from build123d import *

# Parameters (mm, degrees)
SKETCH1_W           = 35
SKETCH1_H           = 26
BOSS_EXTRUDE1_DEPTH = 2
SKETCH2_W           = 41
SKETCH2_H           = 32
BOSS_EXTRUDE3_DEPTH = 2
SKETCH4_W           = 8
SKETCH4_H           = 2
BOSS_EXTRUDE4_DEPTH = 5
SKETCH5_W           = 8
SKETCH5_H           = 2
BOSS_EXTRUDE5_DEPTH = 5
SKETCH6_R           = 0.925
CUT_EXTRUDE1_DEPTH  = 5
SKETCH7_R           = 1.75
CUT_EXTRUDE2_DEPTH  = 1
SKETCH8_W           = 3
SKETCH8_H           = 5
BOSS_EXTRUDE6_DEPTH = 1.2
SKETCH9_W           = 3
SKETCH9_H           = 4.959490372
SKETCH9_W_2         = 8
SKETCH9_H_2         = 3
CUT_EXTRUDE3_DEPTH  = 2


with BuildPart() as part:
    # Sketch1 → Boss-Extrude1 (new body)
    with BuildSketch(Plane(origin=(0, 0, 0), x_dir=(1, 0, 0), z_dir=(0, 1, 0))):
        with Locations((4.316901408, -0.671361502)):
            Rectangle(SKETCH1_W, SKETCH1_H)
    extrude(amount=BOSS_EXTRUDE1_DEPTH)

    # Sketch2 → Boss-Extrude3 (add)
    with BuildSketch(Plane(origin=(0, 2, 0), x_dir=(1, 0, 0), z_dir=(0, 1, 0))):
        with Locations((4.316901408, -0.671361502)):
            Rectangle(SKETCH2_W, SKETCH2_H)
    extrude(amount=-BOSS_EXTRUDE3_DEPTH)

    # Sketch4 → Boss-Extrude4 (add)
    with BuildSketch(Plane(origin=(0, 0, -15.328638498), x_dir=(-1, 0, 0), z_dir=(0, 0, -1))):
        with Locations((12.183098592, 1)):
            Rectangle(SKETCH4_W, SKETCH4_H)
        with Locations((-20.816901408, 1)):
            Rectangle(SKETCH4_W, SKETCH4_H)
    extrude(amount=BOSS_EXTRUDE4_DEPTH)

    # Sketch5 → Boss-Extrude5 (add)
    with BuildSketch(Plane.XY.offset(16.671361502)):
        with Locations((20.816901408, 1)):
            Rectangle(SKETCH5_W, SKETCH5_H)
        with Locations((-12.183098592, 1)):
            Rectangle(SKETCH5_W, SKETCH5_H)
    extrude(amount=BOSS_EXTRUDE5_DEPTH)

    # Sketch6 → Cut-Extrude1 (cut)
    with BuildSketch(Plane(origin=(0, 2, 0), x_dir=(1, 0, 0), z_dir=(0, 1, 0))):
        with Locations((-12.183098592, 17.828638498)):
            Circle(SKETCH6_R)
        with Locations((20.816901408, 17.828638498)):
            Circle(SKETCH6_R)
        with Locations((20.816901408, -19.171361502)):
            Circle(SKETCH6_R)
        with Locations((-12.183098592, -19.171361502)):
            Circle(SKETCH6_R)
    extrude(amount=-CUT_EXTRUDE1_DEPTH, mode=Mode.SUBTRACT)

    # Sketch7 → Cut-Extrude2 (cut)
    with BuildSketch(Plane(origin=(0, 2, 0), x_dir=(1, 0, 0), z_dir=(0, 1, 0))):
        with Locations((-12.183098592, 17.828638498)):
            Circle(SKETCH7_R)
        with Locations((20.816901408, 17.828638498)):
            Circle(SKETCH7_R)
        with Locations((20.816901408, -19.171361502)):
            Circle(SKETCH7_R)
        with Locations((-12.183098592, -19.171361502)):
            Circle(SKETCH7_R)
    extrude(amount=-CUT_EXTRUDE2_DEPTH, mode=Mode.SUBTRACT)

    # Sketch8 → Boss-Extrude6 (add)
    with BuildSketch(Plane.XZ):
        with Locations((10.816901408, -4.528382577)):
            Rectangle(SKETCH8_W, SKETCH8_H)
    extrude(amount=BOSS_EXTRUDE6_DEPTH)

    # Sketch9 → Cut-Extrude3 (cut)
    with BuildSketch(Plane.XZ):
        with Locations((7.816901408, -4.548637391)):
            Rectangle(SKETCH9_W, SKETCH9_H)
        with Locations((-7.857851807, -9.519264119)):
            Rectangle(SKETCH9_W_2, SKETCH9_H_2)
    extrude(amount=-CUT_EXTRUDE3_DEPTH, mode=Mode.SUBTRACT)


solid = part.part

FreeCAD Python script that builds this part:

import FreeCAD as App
import Part
import Sketcher

doc = App.newDocument("Part")
params = doc.addObject("Spreadsheet::Sheet", "Params")
for row, (alias, value) in enumerate([
    ("sketch1_width", "35 mm"),
    ("sketch1_height", "26 mm"),
    ("pad1_length", "2 mm"),
    ("sketch2_width", "41 mm"),
    ("sketch2_height", "32 mm"),
    ("pad2_length", "2 mm"),
    ("sketch3_width", "8 mm"),
    ("sketch3_height", "2 mm"),
    ("pad3_length", "5 mm"),
    ("sketch4_width", "8 mm"),
    ("sketch4_height", "2 mm"),
    ("pad4_length", "5 mm"),
    ("sketch5_diameter", "1.85 mm"),
    ("pocket1_length", "5 mm"),
    ("sketch6_diameter", "3.5 mm"),
    ("pocket2_length", "1 mm"),
    ("sketch7_width", "3 mm"),
    ("sketch7_height", "5 mm"),
    ("pad5_length", "1.2 mm"),
    ("sketch8_width", "3 mm"),
    ("sketch8_width2", "8 mm"),
    ("pocket3_length", "2 mm"),
], start=1):
    params.set(f"A{row}", alias)
    params.set(f"B{row}", "=" + value)
    params.setAlias(f"B{row}", alias)

body = doc.addObject("PartDesign::Body", "Body")

# Sketch on XZ plane
sketch1 = body.newObject("Sketcher::SketchObject", "Sketch")
sketch1.AttachmentSupport = (doc.getObject("XZ_Plane"), [""])
sketch1.MapMode = "FlatFace"
sketch1.addGeometry(Part.LineSegment(App.Vector(-13, -12, 0), App.Vector(-13, 14, 0)), False)
sketch1.addGeometry(Part.LineSegment(App.Vector(-13, 14, 0), App.Vector(22, 14, 0)), False)
sketch1.addGeometry(Part.LineSegment(App.Vector(22, 14, 0), App.Vector(22, -12, 0)), False)
sketch1.addGeometry(Part.LineSegment(App.Vector(22, -12, 0), App.Vector(-13, -12, 0)), False)
sketch1.addConstraint(Sketcher.Constraint("Coincident", 0, 2, 1, 1))
sketch1.addConstraint(Sketcher.Constraint("Coincident", 1, 2, 2, 1))
sketch1.addConstraint(Sketcher.Constraint("Coincident", 2, 2, 3, 1))
sketch1.addConstraint(Sketcher.Constraint("Coincident", 3, 2, 0, 1))
sketch1.addConstraint(Sketcher.Constraint("Vertical", 0))
sketch1.addConstraint(Sketcher.Constraint("Horizontal", 1))
sketch1.addConstraint(Sketcher.Constraint("Vertical", 2))
sketch1.addConstraint(Sketcher.Constraint("Horizontal", 3))
sketch1.addConstraint(Sketcher.Constraint("DistanceX", 1, 1, 1, 2, 35.0))
sketch1.addConstraint(Sketcher.Constraint("DistanceY", 0, 1, 0, 2, 26.0))
sketch1.addConstraint(Sketcher.Constraint("DistanceX", 0, 2, -1, 1, 13.183099))
sketch1.addConstraint(Sketcher.Constraint("DistanceY", -1, 1, 0, 2, 13.671362))
sketch1.setExpression("Constraints[8]", "Params.sketch1_width")
sketch1.setExpression("Constraints[9]", "Params.sketch1_height")
pad1 = body.newObject("PartDesign::Pad", "Pad")
pad1.Profile = sketch1
pad1.setExpression("Length", "Params.pad1_length")
pad1.Reversed = True

# Sketch on XZ plane
sketch2 = body.newObject("Sketcher::SketchObject", "Sketch001")
sketch2.AttachmentSupport = (doc.getObject("XZ_Plane"), [""])
sketch2.MapMode = "FlatFace"
sketch2.AttachmentOffset = App.Placement(App.Vector(0, 0, -2), App.Rotation())
sketch2.addGeometry(Part.LineSegment(App.Vector(-16, -15, 0), App.Vector(-16, 17, 0)), False)
sketch2.addGeometry(Part.LineSegment(App.Vector(-16, 17, 0), App.Vector(25, 17, 0)), False)
sketch2.addGeometry(Part.LineSegment(App.Vector(25, 17, 0), App.Vector(25, -15, 0)), False)
sketch2.addGeometry(Part.LineSegment(App.Vector(25, -15, 0), App.Vector(-16, -15, 0)), False)
sketch2.addConstraint(Sketcher.Constraint("Coincident", 0, 2, 1, 1))
sketch2.addConstraint(Sketcher.Constraint("Coincident", 1, 2, 2, 1))
sketch2.addConstraint(Sketcher.Constraint("Coincident", 2, 2, 3, 1))
sketch2.addConstraint(Sketcher.Constraint("Coincident", 3, 2, 0, 1))
sketch2.addConstraint(Sketcher.Constraint("Vertical", 0))
sketch2.addConstraint(Sketcher.Constraint("Horizontal", 1))
sketch2.addConstraint(Sketcher.Constraint("Vertical", 2))
sketch2.addConstraint(Sketcher.Constraint("Horizontal", 3))
sketch2.addConstraint(Sketcher.Constraint("DistanceX", 1, 1, 1, 2, 41.0))
sketch2.addConstraint(Sketcher.Constraint("DistanceY", 0, 1, 0, 2, 32.0))
sketch2.addConstraint(Sketcher.Constraint("DistanceX", 0, 2, -1, 1, 16.183099))
sketch2.addConstraint(Sketcher.Constraint("DistanceY", -1, 1, 0, 2, 16.671362))
sketch2.setExpression("Constraints[8]", "Params.sketch2_width")
sketch2.setExpression("Constraints[9]", "Params.sketch2_height")
pad2 = body.newObject("PartDesign::Pad", "Pad001")
pad2.Profile = sketch2
pad2.setExpression("Length", "Params.pad2_length")

# Sketch on XY plane
sketch3 = body.newObject("Sketcher::SketchObject", "Sketch002")
sketch3.AttachmentSupport = (doc.getObject("XY_Plane"), [""])
sketch3.MapMode = "FlatFace"
sketch3.AttachmentOffset = App.Placement(App.Vector(0, 0, -15.328638), App.Rotation())
sketch3.addGeometry(Part.LineSegment(App.Vector(-8.2, 2, 0), App.Vector(-8.2, 0, 0)), False)
sketch3.addGeometry(Part.LineSegment(App.Vector(-8.2, 0, 0), App.Vector(-16.2, 0, 0)), False)
sketch3.addGeometry(Part.LineSegment(App.Vector(-16.2, 0, 0), App.Vector(-16.2, 2, 0)), False)
sketch3.addGeometry(Part.LineSegment(App.Vector(-16.2, 2, 0), App.Vector(-8.2, 2, 0)), False)
sketch3.addGeometry(Part.LineSegment(App.Vector(24.8, 2, 0), App.Vector(24.8, 0, 0)), False)
sketch3.addGeometry(Part.LineSegment(App.Vector(24.8, 0, 0), App.Vector(16.8, 0, 0)), False)
sketch3.addGeometry(Part.LineSegment(App.Vector(16.8, 0, 0), App.Vector(16.8, 2, 0)), False)
sketch3.addGeometry(Part.LineSegment(App.Vector(16.8, 2, 0), App.Vector(24.8, 2, 0)), False)
sketch3.addConstraint(Sketcher.Constraint("Coincident", 0, 2, 1, 1))
sketch3.addConstraint(Sketcher.Constraint("Coincident", 1, 2, 2, 1))
sketch3.addConstraint(Sketcher.Constraint("Coincident", 2, 2, 3, 1))
sketch3.addConstraint(Sketcher.Constraint("Coincident", 3, 2, 0, 1))
sketch3.addConstraint(Sketcher.Constraint("Coincident", 4, 2, 5, 1))
sketch3.addConstraint(Sketcher.Constraint("Coincident", 5, 2, 6, 1))
sketch3.addConstraint(Sketcher.Constraint("Coincident", 6, 2, 7, 1))
sketch3.addConstraint(Sketcher.Constraint("Coincident", 7, 2, 4, 1))
sketch3.addConstraint(Sketcher.Constraint("Vertical", 0))
sketch3.addConstraint(Sketcher.Constraint("Horizontal", 1))
sketch3.addConstraint(Sketcher.Constraint("Vertical", 2))
sketch3.addConstraint(Sketcher.Constraint("Horizontal", 3))
sketch3.addConstraint(Sketcher.Constraint("Vertical", 4))
sketch3.addConstraint(Sketcher.Constraint("Horizontal", 5))
sketch3.addConstraint(Sketcher.Constraint("Vertical", 6))
sketch3.addConstraint(Sketcher.Constraint("Horizontal", 7))
sketch3.addConstraint(Sketcher.Constraint("PointOnObject", 0, 2, -1))
sketch3.addConstraint(Sketcher.Constraint("PointOnObject", 4, 2, -1))
sketch3.addConstraint(Sketcher.Constraint("Horizontal", 3, 2, 6, 2))
sketch3.addConstraint(Sketcher.Constraint("Equal", 3, 5))
sketch3.addConstraint(Sketcher.Constraint("DistanceX", 1, 2, 1, 1, 8.0))
sketch3.addConstraint(Sketcher.Constraint("DistanceY", 0, 2, 0, 1, 2.0))
sketch3.addConstraint(Sketcher.Constraint("DistanceX", 0, 2, 4, 2, 33.0))
sketch3.addConstraint(Sketcher.Constraint("DistanceX", 0, 2, -1, 1, 8.183099))
sketch3.setExpression("Constraints[20]", "Params.sketch3_width")
sketch3.setExpression("Constraints[21]", "Params.sketch3_height")
pad3 = body.newObject("PartDesign::Pad", "Pad002")
pad3.Profile = sketch3
pad3.setExpression("Length", "Params.pad3_length")
pad3.Reversed = True

# Sketch on XY plane
sketch4 = body.newObject("Sketcher::SketchObject", "Sketch003")
sketch4.AttachmentSupport = (doc.getObject("XY_Plane"), [""])
sketch4.MapMode = "FlatFace"
sketch4.AttachmentOffset = App.Placement(App.Vector(0, 0, 16.671362), App.Rotation())
sketch4.addGeometry(Part.LineSegment(App.Vector(16.8, 2, 0), App.Vector(16.8, 0, 0)), False)
sketch4.addGeometry(Part.LineSegment(App.Vector(16.8, 0, 0), App.Vector(24.8, 0, 0)), False)
sketch4.addGeometry(Part.LineSegment(App.Vector(24.8, 0, 0), App.Vector(24.8, 2, 0)), False)
sketch4.addGeometry(Part.LineSegment(App.Vector(24.8, 2, 0), App.Vector(16.8, 2, 0)), False)
sketch4.addGeometry(Part.LineSegment(App.Vector(-16.2, 2, 0), App.Vector(-16.2, 0, 0)), False)
sketch4.addGeometry(Part.LineSegment(App.Vector(-16.2, 0, 0), App.Vector(-8.2, 0, 0)), False)
sketch4.addGeometry(Part.LineSegment(App.Vector(-8.2, 0, 0), App.Vector(-8.2, 2, 0)), False)
sketch4.addGeometry(Part.LineSegment(App.Vector(-8.2, 2, 0), App.Vector(-16.2, 2, 0)), False)
sketch4.addConstraint(Sketcher.Constraint("Coincident", 0, 2, 1, 1))
sketch4.addConstraint(Sketcher.Constraint("Coincident", 1, 2, 2, 1))
sketch4.addConstraint(Sketcher.Constraint("Coincident", 2, 2, 3, 1))
sketch4.addConstraint(Sketcher.Constraint("Coincident", 3, 2, 0, 1))
sketch4.addConstraint(Sketcher.Constraint("Coincident", 4, 2, 5, 1))
sketch4.addConstraint(Sketcher.Constraint("Coincident", 5, 2, 6, 1))
sketch4.addConstraint(Sketcher.Constraint("Coincident", 6, 2, 7, 1))
sketch4.addConstraint(Sketcher.Constraint("Coincident", 7, 2, 4, 1))
sketch4.addConstraint(Sketcher.Constraint("Vertical", 0))
sketch4.addConstraint(Sketcher.Constraint("Horizontal", 1))
sketch4.addConstraint(Sketcher.Constraint("Vertical", 2))
sketch4.addConstraint(Sketcher.Constraint("Horizontal", 3))
sketch4.addConstraint(Sketcher.Constraint("Vertical", 4))
sketch4.addConstraint(Sketcher.Constraint("Horizontal", 5))
sketch4.addConstraint(Sketcher.Constraint("Vertical", 6))
sketch4.addConstraint(Sketcher.Constraint("Horizontal", 7))
sketch4.addConstraint(Sketcher.Constraint("PointOnObject", 0, 2, -1))
sketch4.addConstraint(Sketcher.Constraint("PointOnObject", 4, 2, -1))
sketch4.addConstraint(Sketcher.Constraint("Horizontal", 3, 2, 6, 2))
sketch4.addConstraint(Sketcher.Constraint("Equal", 3, 5))
sketch4.addConstraint(Sketcher.Constraint("DistanceX", 1, 1, 1, 2, 8.0))
sketch4.addConstraint(Sketcher.Constraint("DistanceY", 0, 2, 0, 1, 2.0))
sketch4.addConstraint(Sketcher.Constraint("DistanceX", 4, 2, 0, 2, 33.0))
sketch4.addConstraint(Sketcher.Constraint("DistanceX", -1, 1, 0, 2, 16.816901))
sketch4.setExpression("Constraints[20]", "Params.sketch4_width")
sketch4.setExpression("Constraints[21]", "Params.sketch4_height")
pad4 = body.newObject("PartDesign::Pad", "Pad003")
pad4.Profile = sketch4
pad4.setExpression("Length", "Params.pad4_length")

# Sketch on XZ plane
sketch5 = body.newObject("Sketcher::SketchObject", "Sketch004")
sketch5.AttachmentSupport = (doc.getObject("XZ_Plane"), [""])
sketch5.MapMode = "FlatFace"
sketch5.AttachmentOffset = App.Placement(App.Vector(0, 0, -2), App.Rotation())
sketch5.addGeometry(Part.Circle(App.Vector(-12.2, -17.8, 0), App.Vector(0, 0, 1), 0.9), False)
sketch5.addGeometry(Part.Circle(App.Vector(20.8, -17.8, 0), App.Vector(0, 0, 1), 0.9), False)
sketch5.addGeometry(Part.Circle(App.Vector(20.8, 19.2, 0), App.Vector(0, 0, 1), 0.9), False)
sketch5.addGeometry(Part.Circle(App.Vector(-12.2, 19.2, 0), App.Vector(0, 0, 1), 0.9), False)
sketch5.addConstraint(Sketcher.Constraint("Equal", 0, 1))
sketch5.addConstraint(Sketcher.Constraint("Equal", 1, 2))
sketch5.addConstraint(Sketcher.Constraint("Equal", 2, 3))
sketch5.addConstraint(Sketcher.Constraint("Horizontal", 0, 3, 1, 3))
sketch5.addConstraint(Sketcher.Constraint("Horizontal", 2, 3, 3, 3))
sketch5.addConstraint(Sketcher.Constraint("Vertical", 1, 3, 2, 3))
sketch5.addConstraint(Sketcher.Constraint("Vertical", 0, 3, 3, 3))
sketch5.addConstraint(Sketcher.Constraint("Diameter", 0, 1.85))
sketch5.addConstraint(Sketcher.Constraint("DistanceX", 0, 3, 1, 3, 33.0))
sketch5.addConstraint(Sketcher.Constraint("DistanceY", 1, 3, 2, 3, 37.0))
sketch5.addConstraint(Sketcher.Constraint("DistanceX", 0, 3, -1, 1, 12.183099))
sketch5.addConstraint(Sketcher.Constraint("DistanceY", 0, 3, -1, 1, 17.828638))
sketch5.setExpression("Constraints[7]", "Params.sketch5_diameter")
pocket1 = body.newObject("PartDesign::Pocket", "Pocket")
pocket1.Profile = sketch5
pocket1.setExpression("Length", "Params.pocket1_length")
pocket1.Reversed = True

# Sketch on XZ plane
sketch6 = body.newObject("Sketcher::SketchObject", "Sketch005")
sketch6.AttachmentSupport = (doc.getObject("XZ_Plane"), [""])
sketch6.MapMode = "FlatFace"
sketch6.AttachmentOffset = App.Placement(App.Vector(0, 0, -2), App.Rotation())
sketch6.addGeometry(Part.Circle(App.Vector(-12.2, -17.8, 0), App.Vector(0, 0, 1), 1.8), False)
sketch6.addGeometry(Part.Circle(App.Vector(20.8, -17.8, 0), App.Vector(0, 0, 1), 1.8), False)
sketch6.addGeometry(Part.Circle(App.Vector(20.8, 19.2, 0), App.Vector(0, 0, 1), 1.8), False)
sketch6.addGeometry(Part.Circle(App.Vector(-12.2, 19.2, 0), App.Vector(0, 0, 1), 1.8), False)
sketch6.addConstraint(Sketcher.Constraint("Equal", 0, 1))
sketch6.addConstraint(Sketcher.Constraint("Equal", 1, 2))
sketch6.addConstraint(Sketcher.Constraint("Equal", 2, 3))
sketch6.addConstraint(Sketcher.Constraint("Horizontal", 0, 3, 1, 3))
sketch6.addConstraint(Sketcher.Constraint("Horizontal", 2, 3, 3, 3))
sketch6.addConstraint(Sketcher.Constraint("Vertical", 1, 3, 2, 3))
sketch6.addConstraint(Sketcher.Constraint("Vertical", 0, 3, 3, 3))
sketch6.addConstraint(Sketcher.Constraint("Diameter", 0, 3.5))
sketch6.addConstraint(Sketcher.Constraint("DistanceX", 0, 3, 1, 3, 33.0))
sketch6.addConstraint(Sketcher.Constraint("DistanceY", 1, 3, 2, 3, 37.0))
sketch6.addConstraint(Sketcher.Constraint("DistanceX", 0, 3, -1, 1, 12.183099))
sketch6.addConstraint(Sketcher.Constraint("DistanceY", 0, 3, -1, 1, 17.828638))
sketch6.setExpression("Constraints[7]", "Params.sketch6_diameter")
pocket2 = body.newObject("PartDesign::Pocket", "Pocket001")
pocket2.Profile = sketch6
pocket2.setExpression("Length", "Params.pocket2_length")
pocket2.Reversed = True

# Sketch on XZ plane
sketch7 = body.newObject("Sketcher::SketchObject", "Sketch006")
sketch7.AttachmentSupport = (doc.getObject("XZ_Plane"), [""])
sketch7.MapMode = "FlatFace"
sketch7.addGeometry(Part.LineSegment(App.Vector(9.3, -2, 0), App.Vector(9.3, -7, 0)), False)
sketch7.addGeometry(Part.LineSegment(App.Vector(9.3, -7, 0), App.Vector(12.3, -7, 0)), False)
sketch7.addGeometry(Part.LineSegment(App.Vector(12.3, -7, 0), App.Vector(12.3, -2, 0)), False)
sketch7.addGeometry(Part.LineSegment(App.Vector(12.3, -2, 0), App.Vector(9.3, -2, 0)), False)
sketch7.addConstraint(Sketcher.Constraint("Coincident", 0, 2, 1, 1))
sketch7.addConstraint(Sketcher.Constraint("Coincident", 1, 2, 2, 1))
sketch7.addConstraint(Sketcher.Constraint("Coincident", 2, 2, 3, 1))
sketch7.addConstraint(Sketcher.Constraint("Coincident", 3, 2, 0, 1))
sketch7.addConstraint(Sketcher.Constraint("Vertical", 0))
sketch7.addConstraint(Sketcher.Constraint("Horizontal", 1))
sketch7.addConstraint(Sketcher.Constraint("Vertical", 2))
sketch7.addConstraint(Sketcher.Constraint("Horizontal", 3))
sketch7.addConstraint(Sketcher.Constraint("DistanceX", 1, 1, 1, 2, 3.0))
sketch7.addConstraint(Sketcher.Constraint("DistanceY", 0, 2, 0, 1, 5.0))
sketch7.addConstraint(Sketcher.Constraint("DistanceX", -1, 1, 0, 2, 9.316901))
sketch7.addConstraint(Sketcher.Constraint("DistanceY", 0, 2, -1, 1, 7.028383))
sketch7.setExpression("Constraints[8]", "Params.sketch7_width")
sketch7.setExpression("Constraints[9]", "Params.sketch7_height")
pad5 = body.newObject("PartDesign::Pad", "Pad004")
pad5.Profile = sketch7
pad5.setExpression("Length", "Params.pad5_length")

# Sketch on XZ plane
sketch8 = body.newObject("Sketcher::SketchObject", "Sketch007")
sketch8.AttachmentSupport = (doc.getObject("XZ_Plane"), [""])
sketch8.MapMode = "FlatFace"
sketch8.addGeometry(Part.LineSegment(App.Vector(6.3, -2.1, 0), App.Vector(6.3, -7, 0)), False)
sketch8.addGeometry(Part.LineSegment(App.Vector(6.3, -7, 0), App.Vector(9.3, -7, 0)), False)
sketch8.addGeometry(Part.LineSegment(App.Vector(9.3, -7, 0), App.Vector(9.3, -2.1, 0)), False)
sketch8.addGeometry(Part.LineSegment(App.Vector(9.3, -2.1, 0), App.Vector(6.3, -2.1, 0)), False)
sketch8.addGeometry(Part.LineSegment(App.Vector(-11.9, -8, 0), App.Vector(-11.9, -11, 0)), False)
sketch8.addGeometry(Part.LineSegment(App.Vector(-11.9, -11, 0), App.Vector(-3.9, -11, 0)), False)
sketch8.addGeometry(Part.LineSegment(App.Vector(-3.9, -11, 0), App.Vector(-3.9, -8, 0)), False)
sketch8.addGeometry(Part.LineSegment(App.Vector(-3.9, -8, 0), App.Vector(-11.9, -8, 0)), False)
sketch8.addConstraint(Sketcher.Constraint("Coincident", 0, 2, 1, 1))
sketch8.addConstraint(Sketcher.Constraint("Coincident", 1, 2, 2, 1))
sketch8.addConstraint(Sketcher.Constraint("Coincident", 2, 2, 3, 1))
sketch8.addConstraint(Sketcher.Constraint("Coincident", 3, 2, 0, 1))
sketch8.addConstraint(Sketcher.Constraint("Coincident", 4, 2, 5, 1))
sketch8.addConstraint(Sketcher.Constraint("Coincident", 5, 2, 6, 1))
sketch8.addConstraint(Sketcher.Constraint("Coincident", 6, 2, 7, 1))
sketch8.addConstraint(Sketcher.Constraint("Coincident", 7, 2, 4, 1))
sketch8.addConstraint(Sketcher.Constraint("Vertical", 0))
sketch8.addConstraint(Sketcher.Constraint("Horizontal", 1))
sketch8.addConstraint(Sketcher.Constraint("Vertical", 2))
sketch8.addConstraint(Sketcher.Constraint("Horizontal", 3))
sketch8.addConstraint(Sketcher.Constraint("Vertical", 4))
sketch8.addConstraint(Sketcher.Constraint("Horizontal", 5))
sketch8.addConstraint(Sketcher.Constraint("Vertical", 6))
sketch8.addConstraint(Sketcher.Constraint("Horizontal", 7))
sketch8.addConstraint(Sketcher.Constraint("Equal", 3, 4))
sketch8.addConstraint(Sketcher.Constraint("DistanceX", 1, 1, 1, 2, 3.0))
sketch8.addConstraint(Sketcher.Constraint("DistanceX", 5, 1, 5, 2, 8.0))
sketch8.addConstraint(Sketcher.Constraint("DistanceY", 0, 2, 0, 1, 4.95949))
sketch8.addConstraint(Sketcher.Constraint("DistanceX", -1, 1, 0, 2, 6.316901))
sketch8.addConstraint(Sketcher.Constraint("DistanceX", 4, 2, -1, 1, 11.857852))
sketch8.addConstraint(Sketcher.Constraint("DistanceY", 4, 2, 0, 2, 3.990882))
sketch8.addConstraint(Sketcher.Constraint("DistanceY", 0, 2, -1, 1, 7.028383))
sketch8.setExpression("Constraints[17]", "Params.sketch8_width")
sketch8.setExpression("Constraints[18]", "Params.sketch8_width2")
pocket3 = body.newObject("PartDesign::Pocket", "Pocket002")
pocket3.Profile = sketch8
pocket3.setExpression("Length", "Params.pocket3_length")

doc.recompute()
